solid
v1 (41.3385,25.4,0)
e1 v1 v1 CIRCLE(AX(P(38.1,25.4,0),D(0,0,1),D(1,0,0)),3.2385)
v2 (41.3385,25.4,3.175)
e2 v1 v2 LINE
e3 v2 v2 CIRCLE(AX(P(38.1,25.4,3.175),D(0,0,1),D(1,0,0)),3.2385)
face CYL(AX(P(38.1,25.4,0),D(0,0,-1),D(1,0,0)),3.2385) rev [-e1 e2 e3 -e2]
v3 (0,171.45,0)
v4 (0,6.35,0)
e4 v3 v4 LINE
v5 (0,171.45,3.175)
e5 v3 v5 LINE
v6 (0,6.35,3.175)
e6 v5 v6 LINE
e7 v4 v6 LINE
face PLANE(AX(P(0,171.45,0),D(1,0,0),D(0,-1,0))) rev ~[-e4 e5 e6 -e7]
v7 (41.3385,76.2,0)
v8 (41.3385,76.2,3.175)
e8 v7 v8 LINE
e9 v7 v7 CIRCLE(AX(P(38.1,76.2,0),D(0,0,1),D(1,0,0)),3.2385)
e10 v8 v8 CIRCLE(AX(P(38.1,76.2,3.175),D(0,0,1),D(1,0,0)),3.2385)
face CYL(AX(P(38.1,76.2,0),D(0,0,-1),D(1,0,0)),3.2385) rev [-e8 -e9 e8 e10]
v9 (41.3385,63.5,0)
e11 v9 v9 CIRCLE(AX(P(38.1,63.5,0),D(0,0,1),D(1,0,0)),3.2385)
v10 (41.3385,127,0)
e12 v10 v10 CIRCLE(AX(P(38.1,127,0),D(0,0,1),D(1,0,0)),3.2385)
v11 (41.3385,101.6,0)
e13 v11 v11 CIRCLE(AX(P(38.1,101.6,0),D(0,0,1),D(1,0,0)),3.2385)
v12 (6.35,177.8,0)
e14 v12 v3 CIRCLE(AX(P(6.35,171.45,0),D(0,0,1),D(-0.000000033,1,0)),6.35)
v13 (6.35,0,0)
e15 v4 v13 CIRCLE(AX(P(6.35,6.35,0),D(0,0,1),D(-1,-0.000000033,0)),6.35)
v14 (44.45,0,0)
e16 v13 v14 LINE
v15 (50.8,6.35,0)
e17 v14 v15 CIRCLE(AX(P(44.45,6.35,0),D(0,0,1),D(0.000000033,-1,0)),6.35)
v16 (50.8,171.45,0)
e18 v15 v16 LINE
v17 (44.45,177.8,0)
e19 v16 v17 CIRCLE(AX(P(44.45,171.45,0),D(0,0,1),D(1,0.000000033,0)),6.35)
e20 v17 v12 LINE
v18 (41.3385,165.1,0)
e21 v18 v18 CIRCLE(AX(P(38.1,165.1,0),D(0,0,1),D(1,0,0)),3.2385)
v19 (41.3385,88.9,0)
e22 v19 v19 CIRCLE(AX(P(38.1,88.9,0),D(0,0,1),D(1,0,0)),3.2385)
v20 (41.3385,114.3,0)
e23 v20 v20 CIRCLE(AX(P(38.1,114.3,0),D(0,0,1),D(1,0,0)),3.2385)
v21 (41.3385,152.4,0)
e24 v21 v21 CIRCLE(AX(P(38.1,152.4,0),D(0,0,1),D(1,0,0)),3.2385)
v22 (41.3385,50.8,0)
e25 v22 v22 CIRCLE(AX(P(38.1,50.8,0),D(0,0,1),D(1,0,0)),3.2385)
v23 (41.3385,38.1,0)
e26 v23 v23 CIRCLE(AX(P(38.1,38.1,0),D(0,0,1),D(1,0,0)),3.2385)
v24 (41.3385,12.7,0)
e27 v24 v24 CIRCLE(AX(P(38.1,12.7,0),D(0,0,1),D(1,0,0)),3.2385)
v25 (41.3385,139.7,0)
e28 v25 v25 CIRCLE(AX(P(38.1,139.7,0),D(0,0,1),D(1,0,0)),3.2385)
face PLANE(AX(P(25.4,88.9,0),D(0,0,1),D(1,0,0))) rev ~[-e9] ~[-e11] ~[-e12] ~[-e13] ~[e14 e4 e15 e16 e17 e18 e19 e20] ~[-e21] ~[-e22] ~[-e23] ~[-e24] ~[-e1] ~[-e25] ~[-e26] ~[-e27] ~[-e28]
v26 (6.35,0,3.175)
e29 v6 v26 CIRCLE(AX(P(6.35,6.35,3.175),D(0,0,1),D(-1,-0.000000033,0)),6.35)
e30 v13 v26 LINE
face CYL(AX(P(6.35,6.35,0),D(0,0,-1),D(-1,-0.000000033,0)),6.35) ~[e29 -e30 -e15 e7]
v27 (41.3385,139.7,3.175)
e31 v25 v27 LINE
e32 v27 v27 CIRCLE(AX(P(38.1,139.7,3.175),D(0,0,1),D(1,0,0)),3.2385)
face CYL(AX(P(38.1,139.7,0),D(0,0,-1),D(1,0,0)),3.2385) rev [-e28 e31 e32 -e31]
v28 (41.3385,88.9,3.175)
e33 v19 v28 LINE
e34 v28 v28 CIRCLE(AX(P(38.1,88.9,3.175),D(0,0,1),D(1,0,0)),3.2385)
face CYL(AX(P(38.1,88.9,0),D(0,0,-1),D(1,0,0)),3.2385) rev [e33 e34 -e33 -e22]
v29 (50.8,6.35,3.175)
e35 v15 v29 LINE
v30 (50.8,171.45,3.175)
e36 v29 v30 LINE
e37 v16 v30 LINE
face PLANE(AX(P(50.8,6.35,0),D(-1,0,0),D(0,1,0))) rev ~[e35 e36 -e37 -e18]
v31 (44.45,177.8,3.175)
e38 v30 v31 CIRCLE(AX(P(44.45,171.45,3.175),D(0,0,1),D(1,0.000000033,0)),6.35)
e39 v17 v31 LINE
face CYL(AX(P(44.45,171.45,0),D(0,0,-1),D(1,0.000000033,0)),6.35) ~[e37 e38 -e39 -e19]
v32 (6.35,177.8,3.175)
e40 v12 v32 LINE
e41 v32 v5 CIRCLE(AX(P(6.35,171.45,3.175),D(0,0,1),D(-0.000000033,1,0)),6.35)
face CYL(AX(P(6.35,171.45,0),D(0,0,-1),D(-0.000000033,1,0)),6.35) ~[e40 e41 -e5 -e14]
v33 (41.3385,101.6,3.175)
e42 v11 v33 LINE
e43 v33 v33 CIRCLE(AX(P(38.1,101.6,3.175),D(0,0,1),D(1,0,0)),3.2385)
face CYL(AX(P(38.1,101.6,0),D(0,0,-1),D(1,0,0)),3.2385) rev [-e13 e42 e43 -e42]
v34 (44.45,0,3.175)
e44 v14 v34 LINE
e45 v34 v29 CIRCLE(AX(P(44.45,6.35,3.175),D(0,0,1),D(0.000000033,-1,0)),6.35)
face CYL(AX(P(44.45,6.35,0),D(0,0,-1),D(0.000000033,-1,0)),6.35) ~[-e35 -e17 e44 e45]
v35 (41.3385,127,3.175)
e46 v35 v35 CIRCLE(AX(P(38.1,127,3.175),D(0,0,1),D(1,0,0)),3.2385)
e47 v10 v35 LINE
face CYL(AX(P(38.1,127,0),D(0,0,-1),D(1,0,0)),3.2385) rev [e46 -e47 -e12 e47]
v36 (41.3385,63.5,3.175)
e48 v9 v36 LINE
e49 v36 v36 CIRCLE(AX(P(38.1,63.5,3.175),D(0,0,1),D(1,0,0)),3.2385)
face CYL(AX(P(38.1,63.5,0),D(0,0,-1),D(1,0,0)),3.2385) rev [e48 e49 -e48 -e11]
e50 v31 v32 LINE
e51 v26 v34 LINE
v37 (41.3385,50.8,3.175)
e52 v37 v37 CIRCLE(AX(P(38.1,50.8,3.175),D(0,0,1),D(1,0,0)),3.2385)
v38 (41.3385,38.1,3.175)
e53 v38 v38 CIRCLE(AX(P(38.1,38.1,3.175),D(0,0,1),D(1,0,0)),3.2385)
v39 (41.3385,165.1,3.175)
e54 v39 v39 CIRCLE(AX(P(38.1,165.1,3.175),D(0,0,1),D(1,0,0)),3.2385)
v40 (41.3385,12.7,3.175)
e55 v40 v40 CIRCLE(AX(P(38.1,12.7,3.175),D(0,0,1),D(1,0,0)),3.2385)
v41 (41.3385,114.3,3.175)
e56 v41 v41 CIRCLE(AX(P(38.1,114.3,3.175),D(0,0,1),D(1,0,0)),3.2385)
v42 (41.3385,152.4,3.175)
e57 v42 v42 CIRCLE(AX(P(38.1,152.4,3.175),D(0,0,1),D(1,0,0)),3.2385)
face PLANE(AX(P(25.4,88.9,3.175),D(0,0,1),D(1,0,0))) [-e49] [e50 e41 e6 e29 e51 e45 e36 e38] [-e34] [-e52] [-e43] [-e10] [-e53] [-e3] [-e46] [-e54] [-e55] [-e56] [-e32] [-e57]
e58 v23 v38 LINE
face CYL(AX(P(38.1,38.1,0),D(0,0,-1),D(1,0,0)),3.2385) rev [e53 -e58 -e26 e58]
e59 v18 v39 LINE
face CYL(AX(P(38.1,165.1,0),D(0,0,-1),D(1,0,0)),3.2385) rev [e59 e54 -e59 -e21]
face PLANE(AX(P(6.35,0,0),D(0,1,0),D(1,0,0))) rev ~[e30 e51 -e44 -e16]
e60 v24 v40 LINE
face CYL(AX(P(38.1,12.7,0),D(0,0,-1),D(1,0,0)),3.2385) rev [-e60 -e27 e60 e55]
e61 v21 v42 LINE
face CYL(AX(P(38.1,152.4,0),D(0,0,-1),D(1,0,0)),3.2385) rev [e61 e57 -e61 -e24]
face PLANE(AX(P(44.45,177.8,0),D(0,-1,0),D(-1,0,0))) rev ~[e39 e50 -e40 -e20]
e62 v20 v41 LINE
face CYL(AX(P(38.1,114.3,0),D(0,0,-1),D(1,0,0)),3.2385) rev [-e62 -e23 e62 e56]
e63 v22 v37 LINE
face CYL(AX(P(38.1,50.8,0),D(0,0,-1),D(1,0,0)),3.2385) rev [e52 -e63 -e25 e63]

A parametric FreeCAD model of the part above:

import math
import FreeCAD as App
import Part
import Sketcher

V = App.Vector
Q = App.Units.Quantity

doc = App.newDocument("Part")
body = doc.addObject("PartDesign::Body", "Body")

# Sketch on XY plane
sketch1 = doc.addObject("Sketcher::SketchObject", "Sketch")
body.addObject(sketch1)
sketch1.AttachmentSupport = (doc.XY_Plane, [""])
sketch1.MapMode = "FlatFace"
sketch1.addGeometry([
    Part.ArcOfCircle(Part.Circle(V(6.35, 6.35, 0), V(0, 0, 1), 6.35), math.radians(-179.999998), math.radians(-90.000002)),  # 0
    Part.LineSegment(V(6.35, 0, 0), V(44.45, 0, 0)),  # 1
    Part.ArcOfCircle(Part.Circle(V(44.45, 6.35, 0), V(0, 0, 1), 6.35), math.radians(-89.999998), math.radians(-0.000002)),  # 2
    Part.LineSegment(V(50.8, 6.35, 0), V(50.8, 171.45, 0)),  # 3
    Part.ArcOfCircle(Part.Circle(V(44.45, 171.45, 0), V(0, 0, 1), 6.35), math.radians(0.000002), math.radians(89.999998)),  # 4
    Part.LineSegment(V(44.45, 177.8, 0), V(6.35, 177.8, 0)),  # 5
    Part.ArcOfCircle(Part.Circle(V(6.35, 171.45, 0), V(0, 0, 1), 6.35), math.radians(90.000002), math.radians(179.999998)),  # 6
    Part.LineSegment(V(0, 171.45, 0), V(0, 6.35, 0)),  # 7
    Part.Circle(V(38.1, 12.7, 0), V(0, 0, 1), 3.2385),  # 8
    Part.Circle(V(38.1, 25.4, 0), V(0, 0, 1), 3.2385),  # 9
    Part.Circle(V(38.1, 38.1, 0), V(0, 0, 1), 3.2385),  # 10
    Part.Circle(V(38.1, 50.8, 0), V(0, 0, 1), 3.2385),  # 11
    Part.Circle(V(38.1, 63.5, 0), V(0, 0, 1), 3.2385),  # 12
    Part.Circle(V(38.1, 76.2, 0), V(0, 0, 1), 3.2385),  # 13
    Part.Circle(V(38.1, 88.9, 0), V(0, 0, 1), 3.2385),  # 14
    Part.Circle(V(38.1, 101.6, 0), V(0, 0, 1), 3.2385),  # 15
    Part.Circle(V(38.1, 114.3, 0), V(0, 0, 1), 3.2385),  # 16
    Part.Circle(V(38.1, 127, 0), V(0, 0, 1), 3.2385),  # 17
    Part.Circle(V(38.1, 139.7, 0), V(0, 0, 1), 3.2385),  # 18
    Part.Circle(V(38.1, 152.4, 0), V(0, 0, 1), 3.2385),  # 19
    Part.Circle(V(38.1, 165.1, 0), V(0, 0, 1), 3.2385),  # 20
], False)
sketch1.addConstraint([
    Sketcher.Constraint("Tangent", 0, 2, 1, 1),
    Sketcher.Constraint("Tangent", 1, 2, 2, 1),
    Sketcher.Constraint("Tangent", 2, 2, 3, 1),
    Sketcher.Constraint("Tangent", 3, 2, 4, 1),
    Sketcher.Constraint("Tangent", 4, 2, 5, 1),
    Sketcher.Constraint("Tangent", 5, 2, 6, 1),
    Sketcher.Constraint("Tangent", 6, 2, 7, 1),
    Sketcher.Constraint("Tangent", 7, 2, 0, 1),
    Sketcher.Constraint("Horizontal", 1),
    Sketcher.Constraint("Vertical", 3),
    Sketcher.Constraint("Horizontal", 5),
    Sketcher.Constraint("Vertical", 7),
    Sketcher.Constraint("Equal", 0, 2),
    Sketcher.Constraint("Equal", 2, 4),
    Sketcher.Constraint("Equal", 4, 6),
    Sketcher.Constraint("Equal", 8, 9),
    Sketcher.Constraint("Equal", 9, 10),
    Sketcher.Constraint("Equal", 10, 11),
    Sketcher.Constraint("Equal", 11, 12),
    Sketcher.Constraint("Equal", 12, 13),
    Sketcher.Constraint("Equal", 13, 14),
    Sketcher.Constraint("Equal", 14, 15),
    Sketcher.Constraint("Equal", 15, 16),
    Sketcher.Constraint("Equal", 16, 17),
    Sketcher.Constraint("Equal", 17, 18),
    Sketcher.Constraint("Equal", 18, 19),
    Sketcher.Constraint("Equal", 19, 20),
    Sketcher.Constraint("PointOnObject", 0, 2, -1),
    Sketcher.Constraint("PointOnObject", 6, 2, -2),
    Sketcher.Constraint("Vertical", 8, 3, 9, 3),
    Sketcher.Constraint("Vertical", 9, 3, 10, 3),
    Sketcher.Constraint("Vertical", 10, 3, 11, 3),
    Sketcher.Constraint("Vertical", 11, 3, 12, 3),
    Sketcher.Constraint("Vertical", 12, 3, 13, 3),
    Sketcher.Constraint("Vertical", 13, 3, 14, 3),
    Sketcher.Constraint("Vertical", 14, 3, 15, 3),
    Sketcher.Constraint("Vertical", 15, 3, 16, 3),
    Sketcher.Constraint("Vertical", 16, 3, 17, 3),
    Sketcher.Constraint("Vertical", 17, 3, 18, 3),
    Sketcher.Constraint("Vertical", 18, 3, 19, 3),
    Sketcher.Constraint("Vertical", 19, 3, 20, 3),
    Sketcher.Constraint("Radius", 0, Q("0.25 in")),
    Sketcher.Constraint("Diameter", 8, Q("0.255 in")),
    Sketcher.Constraint("DistanceX", 1, 1, 1, 2, Q("1.5 in")),
    Sketcher.Constraint("DistanceY", 3, 1, 3, 2, Q("6.5 in")),
    Sketcher.Constraint("DistanceY", -1, 1, 9, 3, Q("1 in")),
    Sketcher.Constraint("DistanceY", -1, 1, 11, 3, Q("2 in")),
    Sketcher.Constraint("DistanceY", -1, 1, 13, 3, Q("3 in")),
    Sketcher.Constraint("DistanceY", -1, 1, 15, 3, Q("4 in")),
    Sketcher.Constraint("DistanceY", -1, 1, 17, 3, Q("5 in")),
    Sketcher.Constraint("DistanceY", -1, 1, 19, 3, Q("6 in")),
    Sketcher.Constraint("DistanceY", 8, 3, 10, 3, Q("1 in")),
    Sketcher.Constraint("DistanceY", 10, 3, 12, 3, Q("1 in")),
    Sketcher.Constraint("DistanceY", 12, 3, 14, 3, Q("1 in")),
    Sketcher.Constraint("DistanceY", 14, 3, 16, 3, Q("1 in")),
    Sketcher.Constraint("DistanceY", 16, 3, 18, 3, Q("1 in")),
    Sketcher.Constraint("DistanceY", 18, 3, 20, 3, Q("1 in")),
    Sketcher.Constraint("DistanceX", -1, 1, 8, 3, Q("1.5 in")),
    Sketcher.Constraint("DistanceY", -1, 1, 8, 3, Q("0.5 in")),
])
pad1 = doc.addObject("PartDesign::Pad", "Pad")
body.addObject(pad1)
pad1.Profile = sketch1
pad1.Length = Q("0.125 in")

doc.recompute()
